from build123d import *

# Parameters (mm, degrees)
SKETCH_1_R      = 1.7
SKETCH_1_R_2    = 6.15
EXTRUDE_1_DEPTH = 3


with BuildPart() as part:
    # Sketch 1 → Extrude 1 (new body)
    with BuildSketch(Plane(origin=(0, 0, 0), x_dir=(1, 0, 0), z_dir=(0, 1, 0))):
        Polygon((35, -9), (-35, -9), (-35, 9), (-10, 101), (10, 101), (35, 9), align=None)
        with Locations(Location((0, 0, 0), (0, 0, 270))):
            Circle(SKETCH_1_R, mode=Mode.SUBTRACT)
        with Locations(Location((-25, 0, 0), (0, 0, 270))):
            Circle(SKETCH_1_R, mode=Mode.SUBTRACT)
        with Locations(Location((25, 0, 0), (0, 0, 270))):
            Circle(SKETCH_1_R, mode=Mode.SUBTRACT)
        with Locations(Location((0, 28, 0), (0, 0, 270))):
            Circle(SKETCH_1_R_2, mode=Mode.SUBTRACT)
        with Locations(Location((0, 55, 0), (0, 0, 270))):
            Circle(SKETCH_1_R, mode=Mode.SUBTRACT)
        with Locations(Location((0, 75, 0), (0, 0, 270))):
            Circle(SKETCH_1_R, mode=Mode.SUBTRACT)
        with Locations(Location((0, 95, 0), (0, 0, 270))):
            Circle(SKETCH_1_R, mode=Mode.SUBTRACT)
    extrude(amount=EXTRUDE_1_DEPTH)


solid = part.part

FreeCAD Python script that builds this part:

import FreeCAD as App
import Part
import Sketcher
from FreeCAD import Vector
Q = App.Units.Quantity

doc = App.newDocument("Part")
params = doc.addObject("Spreadsheet::Sheet", "Params")
for row, (alias, value) in enumerate([
    ("sketch1_diameter", "3.4 mm"),
    ("sketch1_diameter2", "12.3 mm"),
    ("sketch1_width", "70 mm"),
    ("sketch1_width2", "20 mm"),
    ("sketch1_height", "18 mm"),
    ("pad1_length", "3 mm"),
], start=1):
    params.set(f"A{row}", alias)
    params.set(f"B{row}", "=" + value)
    params.setAlias(f"B{row}", alias)

body = doc.addObject("PartDesign::Body", "Body")

sketch1 = doc.addObject("Sketcher::SketchObject", "Sketch")
body.addObject(sketch1)
sketch1.AttachmentSupport = (doc.XZ_Plane, [""])
sketch1.MapMode = "FlatFace"
sketch1.addGeometry(Part.LineSegment(Vector(-35, 9, 0), Vector(35, 9, 0)), False)
sketch1.addGeometry(Part.LineSegment(Vector(35, 9, 0), Vector(35, -9, 0)), False)
sketch1.addGeometry(Part.LineSegment(Vector(35, -9, 0), Vector(10, -101, 0)), False)
sketch1.addGeometry(Part.LineSegment(Vector(10, -101, 0), Vector(-10, -101, 0)), False)
sketch1.addGeometry(Part.LineSegment(Vector(-10, -101, 0), Vector(-35, -9, 0)), False)
sketch1.addGeometry(Part.LineSegment(Vector(-35, -9, 0), Vector(-35, 9, 0)), False)
sketch1.addGeometry(Part.Circle(Vector(25, 0, 0), Vector(0, 0, 1), 1.7), False)
sketch1.addGeometry(Part.Circle(Vector(0, 0, 0), Vector(0, 0, 1), 1.7), False)
sketch1.addGeometry(Part.Circle(Vector(-25, 0, 0), Vector(0, 0, 1), 1.7), False)
sketch1.addGeometry(Part.Circle(Vector(0, -28, 0), Vector(0, 0, 1), 6.2), False)
sketch1.addGeometry(Part.Circle(Vector(0, -55, 0), Vector(0, 0, 1), 1.7), False)
sketch1.addGeometry(Part.Circle(Vector(0, -75, 0), Vector(0, 0, 1), 1.7), False)
sketch1.addGeometry(Part.Circle(Vector(0, -95, 0), Vector(0, 0, 1), 1.7), False)
sketch1.addConstraint(Sketcher.Constraint("Coincident", 0, 2, 1, 1))
sketch1.addConstraint(Sketcher.Constraint("Coincident", 1, 2, 2, 1))
sketch1.addConstraint(Sketcher.Constraint("Coincident", 2, 2, 3, 1))
sketch1.addConstraint(Sketcher.Constraint("Coincident", 3, 2, 4, 1))
sketch1.addConstraint(Sketcher.Constraint("Coincident", 4, 2, 5, 1))
sketch1.addConstraint(Sketcher.Constraint("Coincident", 5, 2, 0, 1))
sketch1.addConstraint(Sketcher.Constraint("Horizontal", 0))
sketch1.addConstraint(Sketcher.Constraint("Vertical", 1))
sketch1.addConstraint(Sketcher.Constraint("Horizontal", 3))
sketch1.addConstraint(Sketcher.Constraint("Vertical", 5))
sketch1.addConstraint(Sketcher.Constraint("Coincident", 7, 3, -1, 1))
sketch1.addConstraint(Sketcher.Constraint("Equal", 6, 7))
sketch1.addConstraint(Sketcher.Constraint("Equal", 7, 8))
sketch1.addConstraint(Sketcher.Constraint("Equal", 8, 10))
sketch1.addConstraint(Sketcher.Constraint("Equal", 10, 11))
sketch1.addConstraint(Sketcher.Constraint("Equal", 11, 12))
sketch1.addConstraint(Sketcher.Constraint("Symmetric", 6, 3, 8, 3, -1, 1))
sketch1.addConstraint(Sketcher.Constraint("Symmetric", 0, 2, 4, 2, -1, 1))
sketch1.addConstraint(Sketcher.Constraint("PointOnObject", 6, 3, -1))
sketch1.addConstraint(Sketcher.Constraint("PointOnObject", 9, 3, -2))
sketch1.addConstraint(Sketcher.Constraint("PointOnObject", 10, 3, -2))
sketch1.addConstraint(Sketcher.Constraint("PointOnObject", 11, 3, -2))
sketch1.addConstraint(Sketcher.Constraint("PointOnObject", 12, 3, -2))
sketch1.addConstraint(Sketcher.Constraint("Horizontal", 1, 2, 4, 2))
sketch1.addConstraint(Sketcher.Constraint("Equal", 2, 4))
sketch1.addConstraint(Sketcher.Constraint("Diameter", 6, Q("3.4 mm")))
sketch1.addConstraint(Sketcher.Constraint("Diameter", 9, Q("12.3 mm")))
sketch1.addConstraint(Sketcher.Constraint("DistanceX", 0, 1, 0, 2, Q("70 mm")))
sketch1.addConstraint(Sketcher.Constraint("DistanceX", 3, 2, 3, 1, Q("20 mm")))
sketch1.addConstraint(Sketcher.Constraint("DistanceY", 1, 2, 1, 1, Q("18 mm")))
sketch1.addConstraint(Sketcher.Constraint("DistanceX", -1, 1, 6, 3, Q("25 mm")))
sketch1.addConstraint(Sketcher.Constraint("DistanceY", 9, 3, -1, 1, Q("28 mm")))
sketch1.addConstraint(Sketcher.Constraint("DistanceY", 10, 3, -1, 1, Q("55 mm")))
sketch1.addConstraint(Sketcher.Constraint("DistanceY", 11, 3, -1, 1, Q("75 mm")))
sketch1.addConstraint(Sketcher.Constraint("DistanceY", 12, 3, -1, 1, Q("95 mm")))
sketch1.addConstraint(Sketcher.Constraint("DistanceY", 2, 2, -1, 1, Q("101 mm")))
sketch1.setExpression("Constraints[25]", "Params.sketch1_diameter")
sketch1.setExpression("Constraints[26]", "Params.sketch1_diameter2")
sketch1.setExpression("Constraints[27]", "Params.sketch1_width")
sketch1.setExpression("Constraints[28]", "Params.sketch1_width2")
sketch1.setExpression("Constraints[29]", "Params.sketch1_height")
pad1 = doc.addObject("PartDesign::Pad", "Pad")
body.addObject(pad1)
pad1.Profile = sketch1
pad1.setExpression("Length", "Params.pad1_length")
pad1.Reversed = True

doc.recompute()
